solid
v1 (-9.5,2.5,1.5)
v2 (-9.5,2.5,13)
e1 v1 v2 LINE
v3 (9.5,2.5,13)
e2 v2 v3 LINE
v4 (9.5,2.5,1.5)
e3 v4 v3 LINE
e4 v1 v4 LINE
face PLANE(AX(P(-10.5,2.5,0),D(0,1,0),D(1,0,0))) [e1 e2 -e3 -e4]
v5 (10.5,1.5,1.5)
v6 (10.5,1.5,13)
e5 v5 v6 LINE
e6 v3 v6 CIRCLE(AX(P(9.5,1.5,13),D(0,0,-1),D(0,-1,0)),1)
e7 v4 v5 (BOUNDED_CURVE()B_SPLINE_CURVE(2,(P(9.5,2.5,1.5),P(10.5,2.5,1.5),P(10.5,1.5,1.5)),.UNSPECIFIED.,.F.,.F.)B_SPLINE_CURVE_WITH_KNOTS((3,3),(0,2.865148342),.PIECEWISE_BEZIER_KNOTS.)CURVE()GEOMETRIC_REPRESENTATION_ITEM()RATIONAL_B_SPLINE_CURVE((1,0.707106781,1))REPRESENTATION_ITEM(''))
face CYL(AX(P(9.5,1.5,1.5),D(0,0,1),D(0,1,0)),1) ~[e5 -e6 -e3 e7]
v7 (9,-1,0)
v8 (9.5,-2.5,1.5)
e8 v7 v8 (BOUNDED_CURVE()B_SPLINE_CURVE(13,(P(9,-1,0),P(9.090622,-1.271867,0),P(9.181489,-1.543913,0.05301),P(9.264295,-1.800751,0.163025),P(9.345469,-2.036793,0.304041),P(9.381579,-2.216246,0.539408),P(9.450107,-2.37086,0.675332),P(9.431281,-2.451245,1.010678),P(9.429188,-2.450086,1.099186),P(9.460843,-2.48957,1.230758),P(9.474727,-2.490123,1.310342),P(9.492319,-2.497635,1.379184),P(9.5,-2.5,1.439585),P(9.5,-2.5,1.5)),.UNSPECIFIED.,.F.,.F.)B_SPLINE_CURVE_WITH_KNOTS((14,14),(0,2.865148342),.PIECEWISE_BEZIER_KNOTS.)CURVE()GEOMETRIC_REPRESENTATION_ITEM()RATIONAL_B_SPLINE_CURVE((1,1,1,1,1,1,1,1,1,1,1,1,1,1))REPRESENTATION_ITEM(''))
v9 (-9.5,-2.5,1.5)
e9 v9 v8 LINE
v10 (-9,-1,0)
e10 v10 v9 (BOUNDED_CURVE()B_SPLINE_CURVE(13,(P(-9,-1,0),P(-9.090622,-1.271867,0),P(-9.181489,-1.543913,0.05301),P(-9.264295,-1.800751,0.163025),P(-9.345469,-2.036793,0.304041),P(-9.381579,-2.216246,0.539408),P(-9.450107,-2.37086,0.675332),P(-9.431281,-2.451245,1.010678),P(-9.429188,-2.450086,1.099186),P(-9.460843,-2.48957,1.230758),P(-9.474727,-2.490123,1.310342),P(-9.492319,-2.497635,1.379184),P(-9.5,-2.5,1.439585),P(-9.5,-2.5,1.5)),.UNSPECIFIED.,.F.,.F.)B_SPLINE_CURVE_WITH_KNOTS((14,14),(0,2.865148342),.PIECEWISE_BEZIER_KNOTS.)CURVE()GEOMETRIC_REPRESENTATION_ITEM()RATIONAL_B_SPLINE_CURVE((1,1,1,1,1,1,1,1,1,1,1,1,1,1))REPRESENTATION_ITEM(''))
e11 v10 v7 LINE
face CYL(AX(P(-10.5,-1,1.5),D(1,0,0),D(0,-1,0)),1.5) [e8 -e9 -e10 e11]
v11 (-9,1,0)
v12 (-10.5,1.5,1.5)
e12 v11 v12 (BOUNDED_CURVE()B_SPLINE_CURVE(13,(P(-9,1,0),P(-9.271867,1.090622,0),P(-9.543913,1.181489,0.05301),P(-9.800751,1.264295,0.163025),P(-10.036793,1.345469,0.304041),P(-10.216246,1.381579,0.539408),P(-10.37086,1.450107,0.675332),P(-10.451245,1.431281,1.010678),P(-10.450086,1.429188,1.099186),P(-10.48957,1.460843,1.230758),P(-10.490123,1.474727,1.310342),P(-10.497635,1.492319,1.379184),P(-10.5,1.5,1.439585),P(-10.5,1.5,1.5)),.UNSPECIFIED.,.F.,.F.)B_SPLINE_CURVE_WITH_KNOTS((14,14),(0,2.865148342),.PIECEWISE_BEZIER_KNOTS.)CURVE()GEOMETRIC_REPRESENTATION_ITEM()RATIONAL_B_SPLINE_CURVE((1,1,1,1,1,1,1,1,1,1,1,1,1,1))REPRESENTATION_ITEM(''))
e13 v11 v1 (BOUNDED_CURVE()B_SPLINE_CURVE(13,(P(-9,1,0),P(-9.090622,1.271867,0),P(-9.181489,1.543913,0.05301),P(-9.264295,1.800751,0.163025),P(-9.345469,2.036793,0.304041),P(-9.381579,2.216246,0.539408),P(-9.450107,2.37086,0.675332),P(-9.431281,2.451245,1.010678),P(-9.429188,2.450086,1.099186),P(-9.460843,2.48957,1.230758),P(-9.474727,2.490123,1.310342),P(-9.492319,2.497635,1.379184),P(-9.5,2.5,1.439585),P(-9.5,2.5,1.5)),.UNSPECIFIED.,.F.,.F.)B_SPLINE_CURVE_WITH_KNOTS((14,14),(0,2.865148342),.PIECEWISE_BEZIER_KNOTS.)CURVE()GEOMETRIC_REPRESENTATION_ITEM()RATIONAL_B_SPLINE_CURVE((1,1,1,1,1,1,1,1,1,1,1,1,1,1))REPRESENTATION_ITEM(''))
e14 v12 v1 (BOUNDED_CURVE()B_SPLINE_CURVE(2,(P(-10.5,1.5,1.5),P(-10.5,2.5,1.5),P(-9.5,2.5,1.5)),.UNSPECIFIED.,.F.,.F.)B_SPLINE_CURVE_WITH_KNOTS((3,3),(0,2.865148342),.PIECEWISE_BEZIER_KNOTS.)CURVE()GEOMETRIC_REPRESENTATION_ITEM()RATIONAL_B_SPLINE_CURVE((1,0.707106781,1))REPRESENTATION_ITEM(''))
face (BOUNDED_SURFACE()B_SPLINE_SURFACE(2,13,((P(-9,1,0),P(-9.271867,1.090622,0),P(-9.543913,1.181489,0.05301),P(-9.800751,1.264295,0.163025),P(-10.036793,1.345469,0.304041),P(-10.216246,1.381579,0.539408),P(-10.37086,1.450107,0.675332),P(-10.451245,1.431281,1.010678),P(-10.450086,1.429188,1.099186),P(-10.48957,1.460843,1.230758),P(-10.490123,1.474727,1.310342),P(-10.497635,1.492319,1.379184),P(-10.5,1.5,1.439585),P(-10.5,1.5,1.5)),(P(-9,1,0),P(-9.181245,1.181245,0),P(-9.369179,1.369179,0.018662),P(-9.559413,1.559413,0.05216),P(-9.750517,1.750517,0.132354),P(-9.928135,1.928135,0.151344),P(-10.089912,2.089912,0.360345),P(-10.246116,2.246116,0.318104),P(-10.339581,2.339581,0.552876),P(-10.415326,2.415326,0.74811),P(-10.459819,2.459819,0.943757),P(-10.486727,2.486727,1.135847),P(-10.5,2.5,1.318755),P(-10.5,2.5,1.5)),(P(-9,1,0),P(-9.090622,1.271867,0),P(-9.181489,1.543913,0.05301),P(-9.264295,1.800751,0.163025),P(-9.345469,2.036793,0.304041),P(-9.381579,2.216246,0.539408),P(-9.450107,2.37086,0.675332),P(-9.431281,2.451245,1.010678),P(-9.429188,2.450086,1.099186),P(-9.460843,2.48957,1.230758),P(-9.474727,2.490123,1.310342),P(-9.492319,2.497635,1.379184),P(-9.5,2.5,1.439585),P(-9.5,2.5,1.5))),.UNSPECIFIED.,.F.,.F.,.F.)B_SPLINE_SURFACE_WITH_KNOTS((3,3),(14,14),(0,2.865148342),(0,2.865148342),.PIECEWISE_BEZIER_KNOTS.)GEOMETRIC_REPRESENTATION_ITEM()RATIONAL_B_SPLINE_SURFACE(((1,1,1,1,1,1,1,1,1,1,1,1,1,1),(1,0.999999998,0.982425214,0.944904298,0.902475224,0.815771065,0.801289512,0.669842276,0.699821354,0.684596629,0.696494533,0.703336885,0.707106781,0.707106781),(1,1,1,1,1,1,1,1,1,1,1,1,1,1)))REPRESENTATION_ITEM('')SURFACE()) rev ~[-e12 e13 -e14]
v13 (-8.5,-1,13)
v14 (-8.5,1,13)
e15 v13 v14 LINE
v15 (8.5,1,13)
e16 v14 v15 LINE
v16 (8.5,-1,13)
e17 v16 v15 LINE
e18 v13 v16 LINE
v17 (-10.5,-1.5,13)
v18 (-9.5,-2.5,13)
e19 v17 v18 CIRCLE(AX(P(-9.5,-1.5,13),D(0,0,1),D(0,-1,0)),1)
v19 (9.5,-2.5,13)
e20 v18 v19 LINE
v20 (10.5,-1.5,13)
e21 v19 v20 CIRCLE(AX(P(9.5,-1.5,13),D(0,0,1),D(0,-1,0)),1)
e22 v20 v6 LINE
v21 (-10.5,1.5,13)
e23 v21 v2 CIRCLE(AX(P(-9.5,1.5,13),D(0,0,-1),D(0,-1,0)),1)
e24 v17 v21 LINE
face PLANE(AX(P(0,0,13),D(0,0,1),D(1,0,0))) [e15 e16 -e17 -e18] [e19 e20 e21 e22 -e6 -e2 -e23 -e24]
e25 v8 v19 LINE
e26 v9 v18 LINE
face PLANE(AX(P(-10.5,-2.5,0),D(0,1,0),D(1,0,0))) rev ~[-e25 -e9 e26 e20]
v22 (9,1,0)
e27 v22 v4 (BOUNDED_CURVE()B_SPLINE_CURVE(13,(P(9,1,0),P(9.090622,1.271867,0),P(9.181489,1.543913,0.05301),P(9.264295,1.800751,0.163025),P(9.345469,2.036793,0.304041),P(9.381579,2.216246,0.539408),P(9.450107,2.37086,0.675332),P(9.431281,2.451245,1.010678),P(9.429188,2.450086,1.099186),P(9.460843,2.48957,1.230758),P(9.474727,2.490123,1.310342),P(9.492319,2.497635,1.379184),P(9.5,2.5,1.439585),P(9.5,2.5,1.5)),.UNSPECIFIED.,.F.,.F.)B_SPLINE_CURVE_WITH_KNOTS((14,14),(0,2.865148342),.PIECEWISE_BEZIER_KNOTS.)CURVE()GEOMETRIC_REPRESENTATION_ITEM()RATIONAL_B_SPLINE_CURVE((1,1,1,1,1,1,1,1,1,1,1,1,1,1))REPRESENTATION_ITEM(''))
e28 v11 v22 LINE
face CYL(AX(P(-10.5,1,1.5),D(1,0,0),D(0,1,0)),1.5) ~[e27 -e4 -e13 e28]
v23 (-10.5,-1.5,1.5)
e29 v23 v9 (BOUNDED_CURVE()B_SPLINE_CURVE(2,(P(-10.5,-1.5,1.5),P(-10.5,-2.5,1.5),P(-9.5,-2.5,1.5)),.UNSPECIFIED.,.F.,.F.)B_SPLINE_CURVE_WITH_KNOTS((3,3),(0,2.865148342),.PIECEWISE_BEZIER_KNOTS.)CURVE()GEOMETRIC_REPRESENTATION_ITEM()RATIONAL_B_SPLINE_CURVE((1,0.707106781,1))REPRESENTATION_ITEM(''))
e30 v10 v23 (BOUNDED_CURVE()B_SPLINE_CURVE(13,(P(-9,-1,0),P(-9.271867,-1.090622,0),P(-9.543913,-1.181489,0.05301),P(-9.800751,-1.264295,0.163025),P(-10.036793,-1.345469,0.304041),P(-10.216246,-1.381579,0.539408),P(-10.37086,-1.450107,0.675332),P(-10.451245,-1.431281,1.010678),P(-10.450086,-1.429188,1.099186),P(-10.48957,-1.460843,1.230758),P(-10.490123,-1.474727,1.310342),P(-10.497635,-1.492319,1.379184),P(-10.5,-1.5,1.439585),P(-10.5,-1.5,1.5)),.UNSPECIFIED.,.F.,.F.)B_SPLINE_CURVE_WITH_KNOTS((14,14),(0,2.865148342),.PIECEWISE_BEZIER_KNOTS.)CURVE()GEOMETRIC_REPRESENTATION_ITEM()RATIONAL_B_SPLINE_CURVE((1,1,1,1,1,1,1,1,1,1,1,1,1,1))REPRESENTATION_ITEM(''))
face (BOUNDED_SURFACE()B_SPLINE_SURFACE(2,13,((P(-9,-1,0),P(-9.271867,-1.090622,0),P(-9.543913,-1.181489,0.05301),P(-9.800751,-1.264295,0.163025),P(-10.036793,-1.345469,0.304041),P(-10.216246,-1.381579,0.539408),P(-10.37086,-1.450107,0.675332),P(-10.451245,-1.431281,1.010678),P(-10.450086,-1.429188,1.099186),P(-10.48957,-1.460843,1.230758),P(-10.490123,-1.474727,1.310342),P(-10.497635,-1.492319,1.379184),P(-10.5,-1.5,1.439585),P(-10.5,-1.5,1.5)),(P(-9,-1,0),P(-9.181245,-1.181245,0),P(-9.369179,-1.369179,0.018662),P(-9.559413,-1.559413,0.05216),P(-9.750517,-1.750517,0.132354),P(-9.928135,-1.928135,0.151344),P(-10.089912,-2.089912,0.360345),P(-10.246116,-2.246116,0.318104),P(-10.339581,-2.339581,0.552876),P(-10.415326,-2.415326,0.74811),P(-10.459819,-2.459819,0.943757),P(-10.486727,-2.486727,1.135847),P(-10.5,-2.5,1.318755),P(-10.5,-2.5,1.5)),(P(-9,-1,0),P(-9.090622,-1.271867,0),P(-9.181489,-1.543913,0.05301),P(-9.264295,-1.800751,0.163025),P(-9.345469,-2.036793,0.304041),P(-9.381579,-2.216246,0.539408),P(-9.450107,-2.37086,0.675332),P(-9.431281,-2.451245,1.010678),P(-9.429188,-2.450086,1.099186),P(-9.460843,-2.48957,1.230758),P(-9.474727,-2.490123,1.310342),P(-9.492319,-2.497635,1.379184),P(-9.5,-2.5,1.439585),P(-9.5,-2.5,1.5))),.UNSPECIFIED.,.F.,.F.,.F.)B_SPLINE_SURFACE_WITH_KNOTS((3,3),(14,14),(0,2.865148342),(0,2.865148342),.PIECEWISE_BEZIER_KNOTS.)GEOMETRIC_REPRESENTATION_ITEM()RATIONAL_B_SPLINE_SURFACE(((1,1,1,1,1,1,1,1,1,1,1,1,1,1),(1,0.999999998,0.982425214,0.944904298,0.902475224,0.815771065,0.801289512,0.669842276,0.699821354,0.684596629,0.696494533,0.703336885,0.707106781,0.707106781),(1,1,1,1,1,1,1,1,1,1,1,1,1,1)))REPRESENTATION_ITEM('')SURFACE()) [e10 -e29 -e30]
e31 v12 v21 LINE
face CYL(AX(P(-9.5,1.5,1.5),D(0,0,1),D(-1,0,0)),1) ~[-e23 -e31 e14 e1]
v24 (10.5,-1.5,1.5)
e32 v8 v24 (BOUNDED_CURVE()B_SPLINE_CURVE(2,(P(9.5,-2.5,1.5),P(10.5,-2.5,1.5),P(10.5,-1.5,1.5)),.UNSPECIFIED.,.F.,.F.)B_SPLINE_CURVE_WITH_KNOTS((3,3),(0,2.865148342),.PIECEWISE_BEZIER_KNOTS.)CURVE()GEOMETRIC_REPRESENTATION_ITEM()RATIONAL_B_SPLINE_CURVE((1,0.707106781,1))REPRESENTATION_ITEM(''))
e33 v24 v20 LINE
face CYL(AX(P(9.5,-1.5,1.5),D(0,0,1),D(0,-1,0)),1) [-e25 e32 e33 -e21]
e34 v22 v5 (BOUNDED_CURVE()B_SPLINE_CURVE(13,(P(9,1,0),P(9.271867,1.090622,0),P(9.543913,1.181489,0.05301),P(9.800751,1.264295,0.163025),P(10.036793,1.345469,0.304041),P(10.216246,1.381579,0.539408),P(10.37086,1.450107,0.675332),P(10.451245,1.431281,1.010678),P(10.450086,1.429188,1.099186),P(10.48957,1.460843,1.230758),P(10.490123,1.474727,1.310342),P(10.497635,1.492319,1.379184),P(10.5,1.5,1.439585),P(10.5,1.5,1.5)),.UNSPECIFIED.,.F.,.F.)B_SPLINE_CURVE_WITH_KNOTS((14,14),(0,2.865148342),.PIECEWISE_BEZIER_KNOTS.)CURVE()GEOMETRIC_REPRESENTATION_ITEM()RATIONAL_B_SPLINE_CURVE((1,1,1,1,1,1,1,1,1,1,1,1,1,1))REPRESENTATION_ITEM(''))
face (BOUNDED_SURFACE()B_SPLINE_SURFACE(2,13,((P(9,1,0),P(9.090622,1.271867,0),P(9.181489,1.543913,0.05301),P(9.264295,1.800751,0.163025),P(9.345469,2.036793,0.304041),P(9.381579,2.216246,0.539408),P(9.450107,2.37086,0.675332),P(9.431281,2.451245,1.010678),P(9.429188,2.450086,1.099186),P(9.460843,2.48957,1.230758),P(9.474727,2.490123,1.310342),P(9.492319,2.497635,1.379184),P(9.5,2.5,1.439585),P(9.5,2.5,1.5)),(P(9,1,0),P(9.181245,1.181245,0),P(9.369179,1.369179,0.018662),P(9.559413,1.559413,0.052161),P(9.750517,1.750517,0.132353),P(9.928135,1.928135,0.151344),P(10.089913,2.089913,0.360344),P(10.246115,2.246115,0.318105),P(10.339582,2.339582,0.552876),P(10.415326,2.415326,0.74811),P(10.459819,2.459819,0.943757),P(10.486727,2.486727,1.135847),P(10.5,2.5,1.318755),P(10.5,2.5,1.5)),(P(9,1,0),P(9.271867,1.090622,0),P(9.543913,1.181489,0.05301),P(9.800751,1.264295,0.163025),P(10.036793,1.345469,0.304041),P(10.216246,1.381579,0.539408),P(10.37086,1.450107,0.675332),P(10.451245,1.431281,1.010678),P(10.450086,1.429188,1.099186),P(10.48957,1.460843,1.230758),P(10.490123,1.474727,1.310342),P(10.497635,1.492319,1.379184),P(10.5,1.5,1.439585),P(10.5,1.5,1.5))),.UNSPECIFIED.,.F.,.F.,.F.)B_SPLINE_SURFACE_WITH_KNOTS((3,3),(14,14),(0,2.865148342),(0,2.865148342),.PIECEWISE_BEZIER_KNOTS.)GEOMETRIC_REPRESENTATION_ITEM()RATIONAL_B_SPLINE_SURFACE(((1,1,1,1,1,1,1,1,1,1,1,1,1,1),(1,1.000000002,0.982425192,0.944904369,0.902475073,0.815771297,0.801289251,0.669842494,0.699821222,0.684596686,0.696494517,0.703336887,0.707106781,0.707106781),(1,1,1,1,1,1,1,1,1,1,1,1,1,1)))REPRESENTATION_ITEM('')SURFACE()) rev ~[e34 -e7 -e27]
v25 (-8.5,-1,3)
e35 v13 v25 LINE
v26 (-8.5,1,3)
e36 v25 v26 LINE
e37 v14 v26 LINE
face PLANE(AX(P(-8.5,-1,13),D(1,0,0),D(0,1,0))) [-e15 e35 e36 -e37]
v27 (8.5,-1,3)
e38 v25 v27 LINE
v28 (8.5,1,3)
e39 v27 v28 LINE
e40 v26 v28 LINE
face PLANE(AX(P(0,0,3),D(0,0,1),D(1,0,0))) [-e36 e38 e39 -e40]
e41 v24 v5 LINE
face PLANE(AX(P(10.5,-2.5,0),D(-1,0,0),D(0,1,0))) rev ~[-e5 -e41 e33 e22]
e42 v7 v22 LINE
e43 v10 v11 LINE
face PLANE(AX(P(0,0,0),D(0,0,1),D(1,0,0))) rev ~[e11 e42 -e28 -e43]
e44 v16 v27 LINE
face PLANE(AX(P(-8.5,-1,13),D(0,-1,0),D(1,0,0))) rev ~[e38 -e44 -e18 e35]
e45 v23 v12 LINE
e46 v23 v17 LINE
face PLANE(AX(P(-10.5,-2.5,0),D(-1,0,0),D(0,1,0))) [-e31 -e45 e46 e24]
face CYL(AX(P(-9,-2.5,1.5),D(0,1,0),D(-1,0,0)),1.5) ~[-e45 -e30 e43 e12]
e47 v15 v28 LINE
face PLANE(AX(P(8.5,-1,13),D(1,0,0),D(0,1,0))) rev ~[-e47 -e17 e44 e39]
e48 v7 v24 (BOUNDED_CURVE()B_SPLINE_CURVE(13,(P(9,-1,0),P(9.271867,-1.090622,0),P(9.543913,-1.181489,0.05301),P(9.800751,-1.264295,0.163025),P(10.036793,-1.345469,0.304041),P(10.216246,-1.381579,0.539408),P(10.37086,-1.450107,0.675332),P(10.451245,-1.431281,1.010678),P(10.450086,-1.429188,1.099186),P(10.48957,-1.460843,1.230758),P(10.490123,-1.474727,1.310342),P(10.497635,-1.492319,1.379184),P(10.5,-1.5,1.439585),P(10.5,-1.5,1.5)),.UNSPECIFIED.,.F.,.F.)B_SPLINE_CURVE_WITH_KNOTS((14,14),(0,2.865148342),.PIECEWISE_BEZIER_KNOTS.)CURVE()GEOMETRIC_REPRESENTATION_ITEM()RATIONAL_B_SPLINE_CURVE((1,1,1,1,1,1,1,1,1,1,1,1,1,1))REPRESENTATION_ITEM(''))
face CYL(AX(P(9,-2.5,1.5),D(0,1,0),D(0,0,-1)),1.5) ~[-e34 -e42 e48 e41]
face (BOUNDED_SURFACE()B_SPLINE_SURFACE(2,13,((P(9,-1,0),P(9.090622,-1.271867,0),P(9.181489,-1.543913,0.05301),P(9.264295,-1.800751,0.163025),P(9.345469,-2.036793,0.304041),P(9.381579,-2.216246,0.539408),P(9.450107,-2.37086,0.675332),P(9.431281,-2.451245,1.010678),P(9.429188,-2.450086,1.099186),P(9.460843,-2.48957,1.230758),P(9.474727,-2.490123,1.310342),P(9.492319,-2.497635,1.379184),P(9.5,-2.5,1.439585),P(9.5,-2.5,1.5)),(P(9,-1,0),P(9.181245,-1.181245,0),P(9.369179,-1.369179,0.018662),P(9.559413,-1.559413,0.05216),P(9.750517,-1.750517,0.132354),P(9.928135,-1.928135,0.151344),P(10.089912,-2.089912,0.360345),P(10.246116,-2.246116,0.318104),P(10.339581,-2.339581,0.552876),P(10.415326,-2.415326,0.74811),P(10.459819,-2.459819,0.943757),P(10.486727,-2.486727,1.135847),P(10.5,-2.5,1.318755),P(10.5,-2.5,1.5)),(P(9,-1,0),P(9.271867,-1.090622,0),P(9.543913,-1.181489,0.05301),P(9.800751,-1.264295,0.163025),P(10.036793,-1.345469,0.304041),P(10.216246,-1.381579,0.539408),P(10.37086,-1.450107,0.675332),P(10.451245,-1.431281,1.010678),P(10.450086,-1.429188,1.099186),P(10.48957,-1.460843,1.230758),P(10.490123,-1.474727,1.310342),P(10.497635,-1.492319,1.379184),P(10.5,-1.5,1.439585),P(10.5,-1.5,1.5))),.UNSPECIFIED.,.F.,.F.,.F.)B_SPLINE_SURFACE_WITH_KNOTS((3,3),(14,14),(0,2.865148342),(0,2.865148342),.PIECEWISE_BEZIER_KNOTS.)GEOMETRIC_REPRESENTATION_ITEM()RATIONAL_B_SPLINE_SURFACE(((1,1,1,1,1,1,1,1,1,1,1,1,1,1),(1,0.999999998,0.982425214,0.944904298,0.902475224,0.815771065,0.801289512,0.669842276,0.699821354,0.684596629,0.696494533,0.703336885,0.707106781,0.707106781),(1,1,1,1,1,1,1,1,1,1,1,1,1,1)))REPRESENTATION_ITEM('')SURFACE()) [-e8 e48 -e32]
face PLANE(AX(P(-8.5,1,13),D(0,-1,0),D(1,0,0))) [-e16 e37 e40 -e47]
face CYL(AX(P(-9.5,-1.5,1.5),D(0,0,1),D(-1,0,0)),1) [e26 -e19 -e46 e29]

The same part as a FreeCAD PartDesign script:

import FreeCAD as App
import Part
import Sketcher


def edges_at(feature, points):
    """Names of the edges that pass closest to the given points."""
    edges = feature.Shape.Edges
    near = lambda p: min(range(len(edges)), key=lambda i: edges[i].distToShape(Part.Vertex(*p))[0])
    return sorted({f"Edge{near(p) + 1}" for p in points})


def add_polygon(sketch, points):
    """Adds a closed chain of lines whose ends are joined by coincident constraints."""
    first, n = sketch.GeometryCount, len(points)
    for a, b in zip(points, points[1:] + points[:1]):
        sketch.addGeometry(Part.LineSegment(App.Vector(*a, 0), App.Vector(*b, 0)), False)
    for i in range(n):
        sketch.addConstraint(Sketcher.Constraint("Coincident", first + i, 2, first + (i + 1) % n, 1))

doc = App.newDocument("Part")
body = doc.addObject("PartDesign::Body", "Body")

sketch1 = body.newObject("Sketcher::SketchObject", "Sketch")
sketch1.AttachmentSupport = (doc.getObject("XY_Plane"), [""])
sketch1.MapMode = "FlatFace"
add_polygon(sketch1, [(-10, 2), (-10, -2), (10, -2), (10, 2)])
sketch1.addConstraint(Sketcher.Constraint("Vertical", 0))
sketch1.addConstraint(Sketcher.Constraint("Horizontal", 1))
sketch1.addConstraint(Sketcher.Constraint("Vertical", 2))
sketch1.addConstraint(Sketcher.Constraint("Horizontal", 3))
sketch1.addConstraint(Sketcher.Constraint("Symmetric", 0, 2, 2, 2, -1, 1))
sketch1.addConstraint(Sketcher.Constraint("DistanceX", 1, 1, 1, 2, 21.0))
sketch1.addConstraint(Sketcher.Constraint("DistanceY", 0, 2, 0, 1, 5.0))
pad1 = body.newObject("PartDesign::Pad", "Pad")
pad1.Profile = sketch1
pad1.Length = 13

sketch2 = body.newObject("Sketcher::SketchObject", "Sketch001")
sketch2.AttachmentSupport = (doc.getObject("XY_Plane"), [""])
sketch2.MapMode = "FlatFace"
sketch2.AttachmentOffset = App.Placement(App.Vector(0, 0, 13), App.Rotation())
add_polygon(sketch2, [(-8.5, 1), (-8.5, -1), (8.5, -1), (8.5, 1)])
sketch2.addConstraint(Sketcher.Constraint("Vertical", 0))
sketch2.addConstraint(Sketcher.Constraint("Horizontal", 1))
sketch2.addConstraint(Sketcher.Constraint("Vertical", 2))
sketch2.addConstraint(Sketcher.Constraint("Horizontal", 3))
sketch2.addConstraint(Sketcher.Constraint("Symmetric", 0, 2, 2, 2, -1, 1))
sketch2.addConstraint(Sketcher.Constraint("DistanceX", 1, 1, 1, 2, 17.0))
sketch2.addConstraint(Sketcher.Constraint("DistanceY", 0, 2, 0, 1, 2.0))
pocket1 = body.newObject("PartDesign::Pocket", "Pocket")
pocket1.Profile = sketch2
pocket1.Length = 10
doc.recompute()

fillet = body.newObject("PartDesign::Fillet", "Fillet")
fillet.Base = (pocket1, edges_at(pocket1, [
    (0, 2.5, 0),
    (0, -2.5, 0),
    (10.5, 0, 0),
    (-10.5, 0, 0),
]))
fillet.Radius = 1.5
doc.recompute()

fillet2 = body.newObject("PartDesign::Fillet", "Fillet001")
fillet2.Base = (fillet, edges_at(fillet, [
    (-10.5, 2.5, 7.25),
    (-10.5, -2.5, 7.25),
    (10.5, 2.5, 7.25),
    (10.5, -2.5, 7.25),
]))
fillet2.Radius = 1

doc.recompute()
